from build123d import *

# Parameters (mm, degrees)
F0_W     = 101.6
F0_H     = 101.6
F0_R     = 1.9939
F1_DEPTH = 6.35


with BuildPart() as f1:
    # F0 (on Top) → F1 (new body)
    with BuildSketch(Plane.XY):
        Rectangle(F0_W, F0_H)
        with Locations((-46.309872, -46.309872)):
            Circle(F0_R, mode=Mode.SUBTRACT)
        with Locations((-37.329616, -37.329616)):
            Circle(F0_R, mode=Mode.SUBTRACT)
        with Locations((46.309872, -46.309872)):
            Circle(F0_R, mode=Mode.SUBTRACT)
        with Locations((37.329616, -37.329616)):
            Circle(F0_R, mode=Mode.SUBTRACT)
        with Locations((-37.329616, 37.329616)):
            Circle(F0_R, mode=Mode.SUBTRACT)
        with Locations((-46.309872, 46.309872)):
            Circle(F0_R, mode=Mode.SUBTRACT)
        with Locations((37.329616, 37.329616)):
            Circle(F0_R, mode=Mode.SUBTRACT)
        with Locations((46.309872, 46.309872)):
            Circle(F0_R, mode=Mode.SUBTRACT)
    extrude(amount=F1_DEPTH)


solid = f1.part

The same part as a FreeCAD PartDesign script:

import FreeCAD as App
import Part
import Sketcher

V = App.Vector
Q = App.Units.Quantity

doc = App.newDocument("Part")
body = doc.addObject("PartDesign::Body", "Body")

# Sketch on XY plane
sketch1 = doc.addObject("Sketcher::SketchObject", "Sketch")
body.addObject(sketch1)
sketch1.AttachmentSupport = (doc.XY_Plane, [""])
sketch1.MapMode = "FlatFace"
sketch1.addGeometry([
    Part.LineSegment(V(-50.8, 50.8, 0), V(-50.8, -50.8, 0)),  # 0
    Part.LineSegment(V(-50.8, -50.8, 0), V(50.8, -50.8, 0)),  # 1
    Part.LineSegment(V(50.8, -50.8, 0), V(50.8, 50.8, 0)),  # 2
    Part.LineSegment(V(50.8, 50.8, 0), V(-50.8, 50.8, 0)),  # 3
    Part.Circle(V(-46.3, -46.3, 0), V(0, 0, 1), 2),  # 4
    Part.Circle(V(-37.3, -37.3, 0), V(0, 0, 1), 2),  # 5
    Part.Circle(V(46.3, -46.3, 0), V(0, 0, 1), 2),  # 6
    Part.Circle(V(37.3, -37.3, 0), V(0, 0, 1), 2),  # 7
    Part.Circle(V(-37.3, 37.3, 0), V(0, 0, 1), 2),  # 8
    Part.Circle(V(-46.3, 46.3, 0), V(0, 0, 1), 2),  # 9
    Part.Circle(V(37.3, 37.3, 0), V(0, 0, 1), 2),  # 10
    Part.Circle(V(46.3, 46.3, 0), V(0, 0, 1), 2),  # 11
], False)
sketch1.addConstraint([
    Sketcher.Constraint("Coincident", 0, 2, 1, 1),
    Sketcher.Constraint("Coincident", 1, 2, 2, 1),
    Sketcher.Constraint("Coincident", 2, 2, 3, 1),
    Sketcher.Constraint("Coincident", 3, 2, 0, 1),
    Sketcher.Constraint("Vertical", 0),
    Sketcher.Constraint("Horizontal", 1),
    Sketcher.Constraint("Vertical", 2),
    Sketcher.Constraint("Horizontal", 3),
    Sketcher.Constraint("Equal", 4, 5),
    Sketcher.Constraint("Equal", 5, 6),
    Sketcher.Constraint("Equal", 6, 7),
    Sketcher.Constraint("Equal", 7, 8),
    Sketcher.Constraint("Equal", 8, 9),
    Sketcher.Constraint("Equal", 9, 10),
    Sketcher.Constraint("Equal", 10, 11),
    Sketcher.Constraint("Symmetric", 7, 3, 8, 3, -1, 1),
    Sketcher.Constraint("Symmetric", 6, 3, 9, 3, -1, 1),
    Sketcher.Constraint("Symmetric", 5, 3, 10, 3, -1, 1),
    Sketcher.Constraint("Symmetric", 4, 3, 11, 3, -1, 1),
    Sketcher.Constraint("Symmetric", 0, 2, 2, 2, -1, 1),
    Sketcher.Constraint("Symmetric", 4, 3, 6, 3, -2),
    Sketcher.Constraint("Symmetric", 5, 3, 7, 3, -2),
    Sketcher.Constraint("Equal", 3, 0),
    Sketcher.Constraint("DistanceX", 1, 1, 1, 2, Q("4 in")),
    Sketcher.Constraint("Diameter", 4, Q("0.157 in")),
    Sketcher.Constraint("DistanceX", 5, 3, 6, 3, Q("83.639488 mm")),
    Sketcher.Constraint("DistanceY", 4, 3, 8, 3, Q("83.639488 mm")),
    Sketcher.Constraint("DistanceX", 0, 2, 6, 3, Q("97.109872 mm")),
    Sketcher.Constraint("DistanceY", 6, 3, 2, 2, Q("97.109872 mm")),
])
pad1 = doc.addObject("PartDesign::Pad", "Pad")
body.addObject(pad1)
pad1.Profile = sketch1
pad1.Length = Q("0.25 in")

doc.recompute()
